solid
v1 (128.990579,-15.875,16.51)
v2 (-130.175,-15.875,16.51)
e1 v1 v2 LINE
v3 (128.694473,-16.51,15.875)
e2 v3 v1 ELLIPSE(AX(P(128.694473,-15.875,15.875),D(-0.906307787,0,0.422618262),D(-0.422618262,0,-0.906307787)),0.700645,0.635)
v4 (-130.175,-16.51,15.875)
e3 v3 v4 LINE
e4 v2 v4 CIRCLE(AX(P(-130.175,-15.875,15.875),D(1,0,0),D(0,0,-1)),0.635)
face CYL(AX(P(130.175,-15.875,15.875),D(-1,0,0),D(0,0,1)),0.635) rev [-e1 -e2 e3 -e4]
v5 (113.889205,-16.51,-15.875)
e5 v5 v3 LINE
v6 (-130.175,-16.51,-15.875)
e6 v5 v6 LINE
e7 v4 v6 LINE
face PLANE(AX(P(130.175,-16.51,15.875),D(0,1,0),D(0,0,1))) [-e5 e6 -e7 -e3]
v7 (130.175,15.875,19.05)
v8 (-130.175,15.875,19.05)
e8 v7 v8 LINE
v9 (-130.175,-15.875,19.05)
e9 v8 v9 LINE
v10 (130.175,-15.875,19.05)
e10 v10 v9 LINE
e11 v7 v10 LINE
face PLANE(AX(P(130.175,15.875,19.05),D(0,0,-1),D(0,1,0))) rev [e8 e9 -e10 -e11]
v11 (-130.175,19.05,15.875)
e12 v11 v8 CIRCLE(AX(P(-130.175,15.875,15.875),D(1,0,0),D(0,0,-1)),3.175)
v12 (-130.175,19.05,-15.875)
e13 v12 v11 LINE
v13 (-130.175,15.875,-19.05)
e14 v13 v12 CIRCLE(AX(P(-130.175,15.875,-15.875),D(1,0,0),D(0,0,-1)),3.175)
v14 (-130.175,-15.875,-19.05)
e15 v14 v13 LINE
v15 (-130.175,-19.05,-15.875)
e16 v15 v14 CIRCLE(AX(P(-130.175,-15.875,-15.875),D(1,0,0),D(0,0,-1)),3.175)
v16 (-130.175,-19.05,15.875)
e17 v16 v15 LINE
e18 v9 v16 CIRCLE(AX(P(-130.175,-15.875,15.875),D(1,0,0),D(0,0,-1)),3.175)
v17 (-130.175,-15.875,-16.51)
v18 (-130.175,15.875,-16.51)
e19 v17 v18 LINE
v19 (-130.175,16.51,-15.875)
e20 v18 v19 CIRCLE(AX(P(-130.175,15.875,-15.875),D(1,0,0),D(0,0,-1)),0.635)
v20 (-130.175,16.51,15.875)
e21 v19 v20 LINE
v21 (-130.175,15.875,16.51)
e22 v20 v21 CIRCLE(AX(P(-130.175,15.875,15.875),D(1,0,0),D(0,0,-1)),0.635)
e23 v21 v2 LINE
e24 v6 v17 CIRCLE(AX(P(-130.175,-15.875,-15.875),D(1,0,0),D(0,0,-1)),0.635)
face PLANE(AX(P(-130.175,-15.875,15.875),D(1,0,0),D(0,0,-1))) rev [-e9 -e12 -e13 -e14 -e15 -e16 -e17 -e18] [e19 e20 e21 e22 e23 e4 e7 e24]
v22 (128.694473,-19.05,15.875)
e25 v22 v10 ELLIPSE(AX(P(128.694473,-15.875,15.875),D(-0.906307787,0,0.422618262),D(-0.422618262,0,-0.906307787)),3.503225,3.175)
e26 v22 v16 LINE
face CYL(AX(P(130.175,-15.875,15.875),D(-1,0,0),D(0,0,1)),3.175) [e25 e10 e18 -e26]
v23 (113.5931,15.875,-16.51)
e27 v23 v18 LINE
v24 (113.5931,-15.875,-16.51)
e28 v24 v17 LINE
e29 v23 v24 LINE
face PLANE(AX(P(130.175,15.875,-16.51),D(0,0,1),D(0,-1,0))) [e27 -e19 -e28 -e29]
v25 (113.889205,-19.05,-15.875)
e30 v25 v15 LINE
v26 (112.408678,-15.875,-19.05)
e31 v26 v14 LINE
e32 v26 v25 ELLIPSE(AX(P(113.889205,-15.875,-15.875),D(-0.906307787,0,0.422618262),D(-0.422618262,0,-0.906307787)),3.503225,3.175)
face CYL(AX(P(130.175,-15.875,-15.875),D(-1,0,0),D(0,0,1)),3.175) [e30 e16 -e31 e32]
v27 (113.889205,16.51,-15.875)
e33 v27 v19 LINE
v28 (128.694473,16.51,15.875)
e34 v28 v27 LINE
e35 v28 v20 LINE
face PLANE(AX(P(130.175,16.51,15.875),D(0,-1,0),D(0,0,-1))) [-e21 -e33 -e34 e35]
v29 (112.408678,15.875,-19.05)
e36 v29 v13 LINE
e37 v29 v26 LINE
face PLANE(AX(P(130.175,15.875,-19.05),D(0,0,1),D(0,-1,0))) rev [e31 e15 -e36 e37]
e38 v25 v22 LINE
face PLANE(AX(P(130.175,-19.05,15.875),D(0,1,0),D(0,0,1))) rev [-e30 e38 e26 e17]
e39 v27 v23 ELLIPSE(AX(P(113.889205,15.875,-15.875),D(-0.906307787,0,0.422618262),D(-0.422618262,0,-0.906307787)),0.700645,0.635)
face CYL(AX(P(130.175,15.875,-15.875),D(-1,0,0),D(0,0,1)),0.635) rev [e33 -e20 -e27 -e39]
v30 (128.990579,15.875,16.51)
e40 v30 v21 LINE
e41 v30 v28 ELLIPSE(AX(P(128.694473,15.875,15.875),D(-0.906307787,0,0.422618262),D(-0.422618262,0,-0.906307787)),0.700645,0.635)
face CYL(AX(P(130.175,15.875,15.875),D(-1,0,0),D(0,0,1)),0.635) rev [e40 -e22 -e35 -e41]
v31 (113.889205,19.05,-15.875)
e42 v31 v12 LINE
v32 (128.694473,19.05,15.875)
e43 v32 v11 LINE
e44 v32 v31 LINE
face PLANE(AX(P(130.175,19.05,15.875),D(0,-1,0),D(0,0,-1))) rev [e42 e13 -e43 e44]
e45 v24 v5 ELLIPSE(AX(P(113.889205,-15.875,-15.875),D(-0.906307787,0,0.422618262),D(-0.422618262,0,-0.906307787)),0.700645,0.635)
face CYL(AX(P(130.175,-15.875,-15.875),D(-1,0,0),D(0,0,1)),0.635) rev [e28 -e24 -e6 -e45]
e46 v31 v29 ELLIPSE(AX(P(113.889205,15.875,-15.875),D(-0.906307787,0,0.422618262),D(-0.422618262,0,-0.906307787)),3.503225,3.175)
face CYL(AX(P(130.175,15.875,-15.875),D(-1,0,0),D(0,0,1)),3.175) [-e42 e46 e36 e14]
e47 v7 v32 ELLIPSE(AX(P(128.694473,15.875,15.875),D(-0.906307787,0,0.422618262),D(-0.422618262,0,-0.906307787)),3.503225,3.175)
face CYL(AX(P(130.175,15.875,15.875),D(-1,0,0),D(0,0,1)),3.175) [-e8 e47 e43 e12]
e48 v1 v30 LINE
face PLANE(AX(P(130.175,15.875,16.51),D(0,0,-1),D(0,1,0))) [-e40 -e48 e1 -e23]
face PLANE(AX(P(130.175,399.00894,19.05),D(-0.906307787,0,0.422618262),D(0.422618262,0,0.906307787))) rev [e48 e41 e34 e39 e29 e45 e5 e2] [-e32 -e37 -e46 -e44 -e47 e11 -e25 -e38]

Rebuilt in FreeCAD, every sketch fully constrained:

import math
import FreeCAD as App
import Part
import Sketcher
Q = App.Units.Quantity

doc = App.newDocument("Part")
params = doc.addObject("Spreadsheet::Sheet", "Params")
for row, (alias, value) in enumerate([
    ("sketch1_radius", "0.125 in"),
    ("sketch1_radius2", "0.025 in"),
    ("sketch1_width", "1.25 in"),
    ("pad1_length", "10.25 in"),
], start=1):
    params.set(f"A{row}", alias)
    params.set(f"B{row}", "=" + value)
    params.setAlias(f"B{row}", alias)

body = doc.addObject("PartDesign::Body", "Body")

# Sketch on YZ plane
sketch1 = body.newObject("Sketcher::SketchObject", "Sketch")
sketch1.AttachmentSupport = (doc.getObject("YZ_Plane"), [""])
sketch1.MapMode = "FlatFace"
sketch1.addGeometry(Part.LineSegment(App.Vector(19.05, -15.875, 0), App.Vector(19.05, 15.875, 0)), False)
sketch1.addGeometry(Part.ArcOfCircle(Part.Circle(App.Vector(15.875, 15.875, 0), App.Vector(0, 0, 1), 3.175), math.radians(0), math.radians(90)), False)
sketch1.addGeometry(Part.LineSegment(App.Vector(15.875, 19.05, 0), App.Vector(-15.875, 19.05, 0)), False)
sketch1.addGeometry(Part.ArcOfCircle(Part.Circle(App.Vector(-15.875, 15.875, 0), App.Vector(0, 0, 1), 3.175), math.radians(90), math.radians(180)), False)
sketch1.addGeometry(Part.LineSegment(App.Vector(-19.05, 15.875, 0), App.Vector(-19.05, -15.875, 0)), False)
sketch1.addGeometry(Part.ArcOfCircle(Part.Circle(App.Vector(-15.875, -15.875, 0), App.Vector(0, 0, 1), 3.175), math.radians(-180), math.radians(-90)), False)
sketch1.addGeometry(Part.LineSegment(App.Vector(-15.875, -19.05, 0), App.Vector(15.875, -19.05, 0)), False)
sketch1.addGeometry(Part.ArcOfCircle(Part.Circle(App.Vector(15.875, -15.875, 0), App.Vector(0, 0, 1), 3.175), math.radians(-90), math.radians(0)), False)
sketch1.addGeometry(Part.LineSegment(App.Vector(16.51, 15.875, 0), App.Vector(16.51, -15.875, 0)), False)
sketch1.addGeometry(Part.ArcOfCircle(Part.Circle(App.Vector(15.875, -15.875, 0), App.Vector(0, 0, 1), 0.635), math.radians(-90), math.radians(0)), False)
sketch1.addGeometry(Part.LineSegment(App.Vector(15.875, -16.51, 0), App.Vector(-15.875, -16.51, 0)), False)
sketch1.addGeometry(Part.ArcOfCircle(Part.Circle(App.Vector(-15.875, -15.875, 0), App.Vector(0, 0, 1), 0.635), math.radians(180), math.radians(270)), False)
sketch1.addGeometry(Part.LineSegment(App.Vector(-16.51, -15.875, 0), App.Vector(-16.51, 15.875, 0)), False)
sketch1.addGeometry(Part.ArcOfCircle(Part.Circle(App.Vector(-15.875, 15.875, 0), App.Vector(0, 0, 1), 0.635), math.radians(90), math.radians(180)), False)
sketch1.addGeometry(Part.LineSegment(App.Vector(-15.875, 16.51, 0), App.Vector(15.875, 16.51, 0)), False)
sketch1.addGeometry(Part.ArcOfCircle(Part.Circle(App.Vector(15.875, 15.875, 0), App.Vector(0, 0, 1), 0.635), math.radians(0), math.radians(90)), False)
sketch1.addConstraint(Sketcher.Constraint("Tangent", 0, 2, 1, 1))
sketch1.addConstraint(Sketcher.Constraint("Tangent", 1, 2, 2, 1))
sketch1.addConstraint(Sketcher.Constraint("Tangent", 2, 2, 3, 1))
sketch1.addConstraint(Sketcher.Constraint("Tangent", 3, 2, 4, 1))
sketch1.addConstraint(Sketcher.Constraint("Tangent", 4, 2, 5, 1))
sketch1.addConstraint(Sketcher.Constraint("Tangent", 5, 2, 6, 1))
sketch1.addConstraint(Sketcher.Constraint("Tangent", 6, 2, 7, 1))
sketch1.addConstraint(Sketcher.Constraint("Tangent", 7, 2, 0, 1))
sketch1.addConstraint(Sketcher.Constraint("Tangent", 8, 2, 9, 2))
sketch1.addConstraint(Sketcher.Constraint("Tangent", 9, 1, 10, 1))
sketch1.addConstraint(Sketcher.Constraint("Tangent", 10, 2, 11, 2))
sketch1.addConstraint(Sketcher.Constraint("Tangent", 11, 1, 12, 1))
sketch1.addConstraint(Sketcher.Constraint("Tangent", 12, 2, 13, 2))
sketch1.addConstraint(Sketcher.Constraint("Tangent", 13, 1, 14, 1))
sketch1.addConstraint(Sketcher.Constraint("Tangent", 14, 2, 15, 2))
sketch1.addConstraint(Sketcher.Constraint("Tangent", 15, 1, 8, 1))
sketch1.addConstraint(Sketcher.Constraint("Vertical", 0))
sketch1.addConstraint(Sketcher.Constraint("Horizontal", 2))
sketch1.addConstraint(Sketcher.Constraint("Vertical", 4))
sketch1.addConstraint(Sketcher.Constraint("Horizontal", 6))
sketch1.addConstraint(Sketcher.Constraint("Vertical", 8))
sketch1.addConstraint(Sketcher.Constraint("Horizontal", 10))
sketch1.addConstraint(Sketcher.Constraint("Vertical", 12))
sketch1.addConstraint(Sketcher.Constraint("Horizontal", 14))
sketch1.addConstraint(Sketcher.Constraint("Coincident", 9, 3, 7, 3))
sketch1.addConstraint(Sketcher.Constraint("Coincident", 11, 3, 5, 3))
sketch1.addConstraint(Sketcher.Constraint("Coincident", 13, 3, 3, 3))
sketch1.addConstraint(Sketcher.Constraint("Equal", 1, 3))
sketch1.addConstraint(Sketcher.Constraint("Equal", 3, 5))
sketch1.addConstraint(Sketcher.Constraint("Equal", 5, 7))
sketch1.addConstraint(Sketcher.Constraint("Equal", 13, 15))
sketch1.addConstraint(Sketcher.Constraint("Symmetric", 1, 3, 5, 3, -1, 1))
sketch1.addConstraint(Sketcher.Constraint("Equal", 14, 0))
sketch1.addConstraint(Sketcher.Constraint("Radius", 1, Q("0.125 in")))
sketch1.addConstraint(Sketcher.Constraint("Radius", 9, Q("0.025 in")))
sketch1.addConstraint(Sketcher.Constraint("DistanceX", 2, 2, 2, 1, Q("1.25 in")))
sketch1.setExpression("Constraints[33]", "Params.sketch1_radius")
sketch1.setExpression("Constraints[34]", "Params.sketch1_radius2")
sketch1.setExpression("Constraints[35]", "Params.sketch1_width")
pad1 = body.newObject("PartDesign::Pad", "Pad")
pad1.Profile = sketch1
pad1.setExpression("Length", "Params.pad1_length")
pad1.Midplane = True

# Sketch on XZ plane
sketch2 = body.newObject("Sketcher::SketchObject", "Sketch001")
sketch2.AttachmentSupport = (doc.getObject("XZ_Plane"), [""])
sketch2.MapMode = "FlatFace"
sketch2.AttachmentOffset = App.Placement(App.Vector(0, 0, -0.75 * 25.4), App.Rotation())
sketch2.addGeometry(Part.LineSegment(App.Vector(130.175, 19.05, 0), App.Vector(356.802383, 505.053992, 0)), False)
sketch2.addGeometry(Part.LineSegment(App.Vector(356.802383, 505.053992, 0), App.Vector(1328.810368, 51.799225, 0)), False)
sketch2.addGeometry(Part.LineSegment(App.Vector(1328.810368, 51.799225, 0), App.Vector(857.789279, -958.308759, 0)), False)
sketch2.addGeometry(Part.LineSegment(App.Vector(857.789279, -958.308759, 0), App.Vector(-114.218705, -505.053992, 0)), False)
sketch2.addGeometry(Part.LineSegment(App.Vector(-114.218705, -505.053992, 0), App.Vector(112.408678, -19.05, 0)), False)
sketch2.addGeometry(Part.LineSegment(App.Vector(112.408678, -19.05, 0), App.Vector(130.175, 19.05, 0)), False)
sketch2.addConstraint(Sketcher.Constraint("Coincident", 0, 2, 1, 1))
sketch2.addConstraint(Sketcher.Constraint("Coincident", 1, 2, 2, 1))
sketch2.addConstraint(Sketcher.Constraint("Coincident", 2, 2, 3, 1))
sketch2.addConstraint(Sketcher.Constraint("Coincident", 3, 2, 4, 1))
sketch2.addConstraint(Sketcher.Constraint("Coincident", 4, 2, 5, 1))
sketch2.addConstraint(Sketcher.Constraint("Coincident", 5, 2, 0, 1))
sketch2.addConstraint(Sketcher.Constraint("Perpendicular", 0, 1))
sketch2.addConstraint(Sketcher.Constraint("Perpendicular", 1, 2))
sketch2.addConstraint(Sketcher.Constraint("Perpendicular", 2, 3))
sketch2.addConstraint(Sketcher.Constraint("Perpendicular", 3, 4))
sketch2.addConstraint(Sketcher.Constraint("Parallel", 4, 5))
sketch2.addConstraint(Sketcher.Constraint("Equal", 0, 4))
sketch2.addConstraint(Sketcher.Constraint("Angle", 0, Q("65 deg")))
sketch2.addConstraint(Sketcher.Constraint("DistanceY", 4, 2, 5, 2, Q("1.5 in")))
sketch2.addConstraint(Sketcher.Constraint("DistanceY", 4, 2, -1, 1, Q("0.75 in")))
sketch2.addConstraint(Sketcher.Constraint("DistanceX", -1, 1, 5, 2, Q("5.125 in")))
sketch2.addConstraint(Sketcher.Constraint("DistanceX", 4, 2, 2, 2, Q("745.380601 mm")))
sketch2.addConstraint(Sketcher.Constraint("DistanceX", -1, 1, 1, 2, Q("1328.810368 mm")))
pocket1 = body.newObject("PartDesign::Pocket", "Pocket")
pocket1.Profile = sketch2
pocket1.Type = "ThroughAll"
pocket1.Midplane = True

doc.recompute()
